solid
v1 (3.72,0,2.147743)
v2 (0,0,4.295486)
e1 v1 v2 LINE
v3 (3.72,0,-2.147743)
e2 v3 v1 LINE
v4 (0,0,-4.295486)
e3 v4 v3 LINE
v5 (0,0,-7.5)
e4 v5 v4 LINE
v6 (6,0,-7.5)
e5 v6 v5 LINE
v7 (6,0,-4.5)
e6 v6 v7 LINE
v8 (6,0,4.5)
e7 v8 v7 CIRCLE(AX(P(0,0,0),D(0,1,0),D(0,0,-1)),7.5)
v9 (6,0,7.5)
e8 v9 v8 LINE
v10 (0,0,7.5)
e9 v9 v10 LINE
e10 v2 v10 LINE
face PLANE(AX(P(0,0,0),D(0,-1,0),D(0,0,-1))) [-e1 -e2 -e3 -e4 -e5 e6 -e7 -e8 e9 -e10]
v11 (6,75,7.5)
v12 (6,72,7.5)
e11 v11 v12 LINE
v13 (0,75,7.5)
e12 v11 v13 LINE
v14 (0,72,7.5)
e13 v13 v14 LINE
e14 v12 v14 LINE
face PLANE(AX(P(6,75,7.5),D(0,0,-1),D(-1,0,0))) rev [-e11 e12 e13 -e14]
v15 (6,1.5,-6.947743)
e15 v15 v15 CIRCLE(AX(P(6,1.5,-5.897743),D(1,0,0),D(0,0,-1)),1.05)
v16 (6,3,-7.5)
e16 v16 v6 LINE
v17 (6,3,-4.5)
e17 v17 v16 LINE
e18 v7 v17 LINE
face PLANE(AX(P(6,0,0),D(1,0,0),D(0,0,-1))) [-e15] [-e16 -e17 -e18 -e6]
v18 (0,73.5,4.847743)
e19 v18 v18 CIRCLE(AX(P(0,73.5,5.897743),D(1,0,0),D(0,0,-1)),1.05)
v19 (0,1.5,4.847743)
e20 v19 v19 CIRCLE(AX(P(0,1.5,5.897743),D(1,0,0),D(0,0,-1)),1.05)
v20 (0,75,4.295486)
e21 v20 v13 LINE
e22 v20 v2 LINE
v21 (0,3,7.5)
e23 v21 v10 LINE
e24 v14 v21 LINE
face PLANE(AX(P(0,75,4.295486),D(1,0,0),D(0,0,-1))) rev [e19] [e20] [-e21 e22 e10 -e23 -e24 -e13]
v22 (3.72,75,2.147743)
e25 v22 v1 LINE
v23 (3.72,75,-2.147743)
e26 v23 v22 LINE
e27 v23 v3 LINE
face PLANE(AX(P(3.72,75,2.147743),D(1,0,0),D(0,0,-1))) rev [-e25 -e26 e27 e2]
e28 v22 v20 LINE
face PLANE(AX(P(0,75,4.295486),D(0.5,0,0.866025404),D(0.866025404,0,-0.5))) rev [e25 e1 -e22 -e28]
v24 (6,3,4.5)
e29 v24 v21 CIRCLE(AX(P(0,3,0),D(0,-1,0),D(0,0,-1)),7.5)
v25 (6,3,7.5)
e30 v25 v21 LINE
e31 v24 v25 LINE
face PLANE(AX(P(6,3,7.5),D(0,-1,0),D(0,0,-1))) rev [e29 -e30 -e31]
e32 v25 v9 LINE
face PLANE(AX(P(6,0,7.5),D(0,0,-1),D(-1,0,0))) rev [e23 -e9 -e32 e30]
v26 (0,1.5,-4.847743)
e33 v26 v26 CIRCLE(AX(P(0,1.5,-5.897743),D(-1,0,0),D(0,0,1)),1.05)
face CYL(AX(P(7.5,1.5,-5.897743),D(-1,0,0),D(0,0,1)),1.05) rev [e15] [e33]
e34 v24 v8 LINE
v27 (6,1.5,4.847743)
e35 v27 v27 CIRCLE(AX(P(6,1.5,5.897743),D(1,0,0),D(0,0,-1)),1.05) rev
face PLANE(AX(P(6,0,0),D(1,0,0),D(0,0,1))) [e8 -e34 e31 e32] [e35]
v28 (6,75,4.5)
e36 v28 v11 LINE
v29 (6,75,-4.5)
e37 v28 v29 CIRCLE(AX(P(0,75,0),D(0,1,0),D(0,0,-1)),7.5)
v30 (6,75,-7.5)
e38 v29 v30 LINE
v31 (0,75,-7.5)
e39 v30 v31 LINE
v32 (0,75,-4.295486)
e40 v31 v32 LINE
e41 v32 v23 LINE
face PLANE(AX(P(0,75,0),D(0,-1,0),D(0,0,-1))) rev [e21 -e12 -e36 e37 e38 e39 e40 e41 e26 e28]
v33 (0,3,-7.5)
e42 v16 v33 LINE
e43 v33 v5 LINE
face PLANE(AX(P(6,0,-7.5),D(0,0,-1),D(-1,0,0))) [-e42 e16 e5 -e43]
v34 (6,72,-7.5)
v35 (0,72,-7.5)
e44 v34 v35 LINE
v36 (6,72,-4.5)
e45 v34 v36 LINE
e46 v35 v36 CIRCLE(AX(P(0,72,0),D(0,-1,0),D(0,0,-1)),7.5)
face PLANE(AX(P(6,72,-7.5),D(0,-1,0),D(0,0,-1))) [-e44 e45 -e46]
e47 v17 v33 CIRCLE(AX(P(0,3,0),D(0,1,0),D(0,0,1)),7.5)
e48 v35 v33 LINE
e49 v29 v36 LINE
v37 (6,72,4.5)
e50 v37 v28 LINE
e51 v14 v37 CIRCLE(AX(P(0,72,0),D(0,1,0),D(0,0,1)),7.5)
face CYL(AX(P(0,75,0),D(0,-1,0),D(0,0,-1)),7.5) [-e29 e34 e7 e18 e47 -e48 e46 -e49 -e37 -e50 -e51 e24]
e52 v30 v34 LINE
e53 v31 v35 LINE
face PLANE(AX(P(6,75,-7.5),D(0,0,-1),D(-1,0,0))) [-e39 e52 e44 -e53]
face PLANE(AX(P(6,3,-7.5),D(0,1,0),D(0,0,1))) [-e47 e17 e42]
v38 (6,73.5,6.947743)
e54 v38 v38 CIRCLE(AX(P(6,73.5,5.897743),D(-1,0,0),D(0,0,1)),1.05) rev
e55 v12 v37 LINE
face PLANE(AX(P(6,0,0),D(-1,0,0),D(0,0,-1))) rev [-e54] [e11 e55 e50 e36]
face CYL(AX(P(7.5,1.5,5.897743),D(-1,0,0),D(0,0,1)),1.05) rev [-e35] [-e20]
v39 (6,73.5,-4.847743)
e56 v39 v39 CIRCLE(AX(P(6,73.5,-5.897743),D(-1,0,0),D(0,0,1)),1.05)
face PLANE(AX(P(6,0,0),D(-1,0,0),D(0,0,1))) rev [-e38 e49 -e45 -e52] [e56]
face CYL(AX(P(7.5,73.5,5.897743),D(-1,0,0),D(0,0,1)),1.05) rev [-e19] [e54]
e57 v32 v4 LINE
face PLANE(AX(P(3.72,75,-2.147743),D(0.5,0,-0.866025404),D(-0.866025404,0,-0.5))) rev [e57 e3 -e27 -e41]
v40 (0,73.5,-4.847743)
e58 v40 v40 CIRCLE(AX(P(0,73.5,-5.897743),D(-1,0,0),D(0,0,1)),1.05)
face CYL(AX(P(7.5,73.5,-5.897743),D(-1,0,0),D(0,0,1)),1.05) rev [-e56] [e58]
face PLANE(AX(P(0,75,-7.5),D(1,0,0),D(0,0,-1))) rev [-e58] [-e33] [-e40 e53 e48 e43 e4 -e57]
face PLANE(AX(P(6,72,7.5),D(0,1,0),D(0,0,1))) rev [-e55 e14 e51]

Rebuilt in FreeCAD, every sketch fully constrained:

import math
import FreeCAD as App
import Part
import Sketcher
from FreeCAD import Vector
Q = App.Units.Quantity


def add_polygon(sketch, points):
    """Adds a closed chain of lines whose ends are joined by coincident constraints."""
    first, n = sketch.GeometryCount, len(points)
    for a, b in zip(points, points[1:] + points[:1]):
        sketch.addGeometry(Part.LineSegment(App.Vector(*a, 0), App.Vector(*b, 0)), False)
    for i in range(n):
        sketch.addConstraint(Sketcher.Constraint("Coincident", first + i, 2, first + (i + 1) % n, 1))

doc = App.newDocument("Part")
body = doc.addObject("PartDesign::Body", "Body")

# Sketch on XZ plane
sketch1 = doc.addObject("Sketcher::SketchObject", "Sketch")
body.addObject(sketch1)
sketch1.AttachmentSupport = (doc.XZ_Plane, [""])
sketch1.MapMode = "FlatFace"
sketch1.addGeometry([
    Part.LineSegment(Vector(0, -7.5, 0), Vector(0, -4.3, 0)),  # 0
    Part.LineSegment(Vector(0, -4.3, 0), Vector(3.7, -2.1, 0)),  # 1
    Part.LineSegment(Vector(3.7, -2.1, 0), Vector(3.7, 2.1, 0)),  # 2
    Part.LineSegment(Vector(3.7, 2.1, 0), Vector(0, 4.3, 0)),  # 3
    Part.LineSegment(Vector(0, 4.3, 0), Vector(0, 7.5, 0)),  # 4
    Part.ArcOfCircle(Part.Circle(Vector(0, 0, 0), Vector(0, 0, 1), 7.5), math.radians(-90), math.radians(90)),  # 5
], False)
sketch1.addConstraint([
    Sketcher.Constraint("Coincident", 0, 2, 1, 1),
    Sketcher.Constraint("Coincident", 1, 2, 2, 1),
    Sketcher.Constraint("Coincident", 2, 2, 3, 1),
    Sketcher.Constraint("Coincident", 3, 2, 4, 1),
    Sketcher.Constraint("Coincident", 4, 2, 5, 2),
    Sketcher.Constraint("Coincident", 5, 1, 0, 1),
    Sketcher.Constraint("Vertical", 0),
    Sketcher.Constraint("Vertical", 2),
    Sketcher.Constraint("Vertical", 4),
    Sketcher.Constraint("Coincident", 5, 3, -1, 1),
    Sketcher.Constraint("Symmetric", 0, 2, 3, 2, -1, 1),
    Sketcher.Constraint("PointOnObject", 0, 2, -2),
    Sketcher.Constraint("Equal", 1, 3),
    Sketcher.Constraint("Radius", 5, 7.5),
    Sketcher.Constraint("Angle", 1, Q("30 deg")),
    Sketcher.Constraint("DistanceX", -1, 1, 1, 2, 3.72),
    Sketcher.Constraint("DistanceY", 0, 1, 0, 2, 3.204514),
])
pad1 = doc.addObject("PartDesign::Pad", "Pad")
body.addObject(pad1)
pad1.Profile = sketch1
pad1.Length = 75
pad1.Reversed = True

# Sketch on YZ plane
sketch2 = doc.addObject("Sketcher::SketchObject", "Sketch001")
body.addObject(sketch2)
sketch2.AttachmentSupport = (doc.YZ_Plane, [""])
sketch2.MapMode = "FlatFace"
add_polygon(sketch2, [(3, -7.5), (0, -7.5), (0, -4.3), (3, -4.3)])  # lines 0-3
add_polygon(sketch2, [(75, -7.5), (72, -7.5), (72, -4.3), (75, -4.3)])  # lines 4-7
sketch2.addConstraint([
    Sketcher.Constraint("Horizontal", 0),
    Sketcher.Constraint("Vertical", 1),
    Sketcher.Constraint("Horizontal", 2),
    Sketcher.Constraint("Vertical", 3),
    Sketcher.Constraint("Horizontal", 4),
    Sketcher.Constraint("Vertical", 5),
    Sketcher.Constraint("Horizontal", 6),
    Sketcher.Constraint("Vertical", 7),
    Sketcher.Constraint("PointOnObject", 0, 2, -2),
    Sketcher.Constraint("Horizontal", 3, 2, 4, 2),
    Sketcher.Constraint("Horizontal", 2, 2, 5, 2),
    Sketcher.Constraint("Equal", 2, 4),
    Sketcher.Constraint("DistanceX", 0, 2, 0, 1, 3.0),
    Sketcher.Constraint("DistanceX", -1, 1, 4, 2, 72.0),
    Sketcher.Constraint("DistanceY", 0, 2, -1, 1, 7.5),
    Sketcher.Constraint("DistanceY", 1, 1, 1, 2, 3.204514),
])
pad2 = doc.addObject("PartDesign::Pad", "Pad001")
body.addObject(pad2)
pad2.Profile = sketch2
pad2.Length = 6

# Sketch on YZ plane
sketch3 = doc.addObject("Sketcher::SketchObject", "Sketch002")
body.addObject(sketch3)
sketch3.AttachmentSupport = (doc.YZ_Plane, [""])
sketch3.MapMode = "FlatFace"
sketch3.addGeometry([
    Part.Circle(Vector(73.5, -5.9, 0), Vector(0, 0, 1), 1.1),
    Part.Circle(Vector(1.5, -5.9, 0), Vector(0, 0, 1), 1.1),
], False)
sketch3.addConstraint([
    Sketcher.Constraint("Equal", 0, 1),
    Sketcher.Constraint("Horizontal", 0, 3, 1, 3),
    Sketcher.Constraint("Diameter", 0, 2.1),
    Sketcher.Constraint("DistanceX", 1, 3, 0, 3, 72.0),
    Sketcher.Constraint("DistanceX", -1, 1, 0, 3, 73.5),
    Sketcher.Constraint("DistanceY", 0, 3, -1, 1, 5.897743),
])
pocket1 = doc.addObject("PartDesign::Pocket", "Pocket")
body.addObject(pocket1)
pocket1.Profile = sketch3
pocket1.Type = "ThroughAll"
pocket1.Reversed = True
doc.recompute()

mirrored = doc.addObject("PartDesign::Mirrored", "Mirrored")
body.addObject(mirrored)
mirrored.Originals = [pad2, pocket1]
mirrored.MirrorPlane = (doc.XY_Plane, [""])
body.Tip = mirrored

doc.recompute()
